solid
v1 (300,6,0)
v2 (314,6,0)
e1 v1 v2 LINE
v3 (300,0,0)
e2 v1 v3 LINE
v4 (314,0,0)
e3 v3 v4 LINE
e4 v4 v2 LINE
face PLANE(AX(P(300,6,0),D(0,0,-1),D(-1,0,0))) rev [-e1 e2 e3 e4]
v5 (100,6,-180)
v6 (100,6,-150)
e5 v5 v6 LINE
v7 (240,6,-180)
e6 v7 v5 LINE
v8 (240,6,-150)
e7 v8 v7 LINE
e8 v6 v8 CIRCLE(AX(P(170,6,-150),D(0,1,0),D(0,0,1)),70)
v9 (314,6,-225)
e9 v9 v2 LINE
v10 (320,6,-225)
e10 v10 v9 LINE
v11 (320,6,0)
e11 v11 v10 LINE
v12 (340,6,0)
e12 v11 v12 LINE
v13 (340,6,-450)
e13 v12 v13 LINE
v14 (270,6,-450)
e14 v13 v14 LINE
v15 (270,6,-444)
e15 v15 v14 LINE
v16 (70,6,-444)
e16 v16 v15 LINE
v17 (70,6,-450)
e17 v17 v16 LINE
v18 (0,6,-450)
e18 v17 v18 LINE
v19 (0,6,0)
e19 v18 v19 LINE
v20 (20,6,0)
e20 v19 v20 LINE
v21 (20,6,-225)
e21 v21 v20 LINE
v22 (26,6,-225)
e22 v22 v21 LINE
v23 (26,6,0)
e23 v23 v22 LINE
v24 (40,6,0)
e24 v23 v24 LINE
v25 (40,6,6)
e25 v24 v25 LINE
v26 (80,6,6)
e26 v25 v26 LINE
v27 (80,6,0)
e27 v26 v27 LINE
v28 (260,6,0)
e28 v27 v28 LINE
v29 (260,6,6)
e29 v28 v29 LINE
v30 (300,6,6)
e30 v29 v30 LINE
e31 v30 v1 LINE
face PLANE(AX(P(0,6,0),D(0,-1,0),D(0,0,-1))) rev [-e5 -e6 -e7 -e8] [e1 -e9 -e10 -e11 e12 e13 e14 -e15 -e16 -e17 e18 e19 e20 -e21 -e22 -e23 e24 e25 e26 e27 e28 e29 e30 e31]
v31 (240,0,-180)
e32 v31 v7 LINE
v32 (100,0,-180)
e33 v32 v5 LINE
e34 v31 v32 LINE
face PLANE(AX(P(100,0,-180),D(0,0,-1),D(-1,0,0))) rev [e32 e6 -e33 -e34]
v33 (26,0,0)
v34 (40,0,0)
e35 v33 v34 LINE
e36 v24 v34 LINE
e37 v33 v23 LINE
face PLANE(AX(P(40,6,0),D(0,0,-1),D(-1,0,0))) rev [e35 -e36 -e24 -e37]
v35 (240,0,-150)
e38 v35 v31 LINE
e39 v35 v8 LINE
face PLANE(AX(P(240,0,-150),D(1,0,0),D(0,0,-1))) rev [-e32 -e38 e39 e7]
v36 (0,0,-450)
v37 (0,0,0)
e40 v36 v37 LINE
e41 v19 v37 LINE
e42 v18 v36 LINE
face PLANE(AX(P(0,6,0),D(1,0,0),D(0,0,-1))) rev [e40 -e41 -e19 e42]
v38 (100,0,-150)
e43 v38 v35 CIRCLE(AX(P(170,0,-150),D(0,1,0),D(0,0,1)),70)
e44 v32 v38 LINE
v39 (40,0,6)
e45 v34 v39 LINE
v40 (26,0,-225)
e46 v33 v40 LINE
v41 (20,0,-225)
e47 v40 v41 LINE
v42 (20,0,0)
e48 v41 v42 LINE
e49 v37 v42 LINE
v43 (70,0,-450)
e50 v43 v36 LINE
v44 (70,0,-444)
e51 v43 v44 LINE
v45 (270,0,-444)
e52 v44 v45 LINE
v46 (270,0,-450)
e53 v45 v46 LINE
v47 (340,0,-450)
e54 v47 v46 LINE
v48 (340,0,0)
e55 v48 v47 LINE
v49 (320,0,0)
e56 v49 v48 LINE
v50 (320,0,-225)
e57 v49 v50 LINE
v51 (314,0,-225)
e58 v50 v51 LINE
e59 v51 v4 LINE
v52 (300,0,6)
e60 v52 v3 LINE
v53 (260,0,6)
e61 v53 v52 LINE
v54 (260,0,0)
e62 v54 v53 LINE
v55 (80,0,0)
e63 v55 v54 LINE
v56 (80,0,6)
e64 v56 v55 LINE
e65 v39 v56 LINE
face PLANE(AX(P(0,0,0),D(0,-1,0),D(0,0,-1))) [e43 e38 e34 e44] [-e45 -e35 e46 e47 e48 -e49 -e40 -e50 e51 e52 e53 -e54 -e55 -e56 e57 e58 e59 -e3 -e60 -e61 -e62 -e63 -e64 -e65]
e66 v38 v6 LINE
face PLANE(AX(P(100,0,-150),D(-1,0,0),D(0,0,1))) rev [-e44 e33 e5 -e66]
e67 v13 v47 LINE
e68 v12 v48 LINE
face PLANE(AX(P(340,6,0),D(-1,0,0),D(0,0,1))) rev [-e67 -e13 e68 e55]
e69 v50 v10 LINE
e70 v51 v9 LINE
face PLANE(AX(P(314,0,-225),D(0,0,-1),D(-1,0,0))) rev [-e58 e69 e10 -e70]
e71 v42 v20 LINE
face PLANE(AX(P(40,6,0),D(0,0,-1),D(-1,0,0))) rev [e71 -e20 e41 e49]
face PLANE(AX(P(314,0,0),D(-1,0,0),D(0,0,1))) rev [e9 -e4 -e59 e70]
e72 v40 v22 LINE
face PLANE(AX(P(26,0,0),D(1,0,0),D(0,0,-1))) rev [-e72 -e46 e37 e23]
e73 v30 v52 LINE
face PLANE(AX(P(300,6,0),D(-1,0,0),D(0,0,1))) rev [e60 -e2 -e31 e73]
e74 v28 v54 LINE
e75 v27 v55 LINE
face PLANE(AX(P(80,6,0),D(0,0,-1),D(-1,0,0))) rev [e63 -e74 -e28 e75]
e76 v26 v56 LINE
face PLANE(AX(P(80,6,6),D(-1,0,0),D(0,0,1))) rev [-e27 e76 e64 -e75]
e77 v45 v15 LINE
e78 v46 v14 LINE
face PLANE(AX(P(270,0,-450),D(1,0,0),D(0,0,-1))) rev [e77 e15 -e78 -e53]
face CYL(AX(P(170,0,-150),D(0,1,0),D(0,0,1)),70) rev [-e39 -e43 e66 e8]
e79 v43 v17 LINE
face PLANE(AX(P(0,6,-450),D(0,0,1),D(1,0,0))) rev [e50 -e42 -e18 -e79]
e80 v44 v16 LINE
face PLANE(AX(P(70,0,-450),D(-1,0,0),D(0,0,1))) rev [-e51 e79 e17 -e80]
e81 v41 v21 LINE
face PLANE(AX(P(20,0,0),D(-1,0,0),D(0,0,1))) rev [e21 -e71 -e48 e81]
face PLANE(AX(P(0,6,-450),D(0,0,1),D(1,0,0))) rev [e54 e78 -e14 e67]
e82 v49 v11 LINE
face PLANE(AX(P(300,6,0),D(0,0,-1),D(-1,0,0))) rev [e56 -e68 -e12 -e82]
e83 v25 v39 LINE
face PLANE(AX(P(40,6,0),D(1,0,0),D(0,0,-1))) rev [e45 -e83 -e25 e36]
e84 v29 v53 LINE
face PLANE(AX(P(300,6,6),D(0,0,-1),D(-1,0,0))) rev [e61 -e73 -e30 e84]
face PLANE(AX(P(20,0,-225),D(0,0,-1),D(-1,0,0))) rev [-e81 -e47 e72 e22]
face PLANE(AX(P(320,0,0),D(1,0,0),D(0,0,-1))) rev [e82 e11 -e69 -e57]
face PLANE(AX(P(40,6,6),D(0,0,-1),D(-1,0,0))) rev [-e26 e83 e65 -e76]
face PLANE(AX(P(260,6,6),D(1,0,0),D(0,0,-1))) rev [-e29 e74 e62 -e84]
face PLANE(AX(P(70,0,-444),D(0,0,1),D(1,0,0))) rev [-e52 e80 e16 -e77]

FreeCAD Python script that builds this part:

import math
import FreeCAD as App
import Part
import Sketcher
from FreeCAD import Vector

doc = App.newDocument("Part")
body = doc.addObject("PartDesign::Body", "Body")

# Sketch on XZ plane
sketch1 = body.newObject("Sketcher::SketchObject", "Sketch")
sketch1.AttachmentSupport = (doc.getObject("XZ_Plane"), [""])
sketch1.MapMode = "FlatFace"
sketch1.addGeometry([
    Part.LineSegment(Vector(300, 6, 0), Vector(300, 0, 0)),  # 0
    Part.LineSegment(Vector(300, 0, 0), Vector(340, 0, 0)),  # 1
    Part.LineSegment(Vector(340, 0, 0), Vector(340, -450, 0)),  # 2
    Part.LineSegment(Vector(340, -450, 0), Vector(0, -450, 0)),  # 3
    Part.LineSegment(Vector(0, -450, 0), Vector(0, 0, 0)),  # 4
    Part.LineSegment(Vector(0, 0, 0), Vector(40, 0, 0)),  # 5
    Part.LineSegment(Vector(40, 0, 0), Vector(40, 6, 0)),  # 6
    Part.LineSegment(Vector(40, 6, 0), Vector(80, 6, 0)),  # 7
    Part.LineSegment(Vector(80, 6, 0), Vector(80, 0, 0)),  # 8
    Part.LineSegment(Vector(80, 0, 0), Vector(260, 0, 0)),  # 9
    Part.LineSegment(Vector(260, 0, 0), Vector(260, 6, 0)),  # 10
    Part.LineSegment(Vector(260, 6, 0), Vector(300, 6, 0)),  # 11
], False)
sketch1.addConstraint([
    Sketcher.Constraint("Coincident", 0, 2, 1, 1),
    Sketcher.Constraint("Coincident", 1, 2, 2, 1),
    Sketcher.Constraint("Coincident", 2, 2, 3, 1),
    Sketcher.Constraint("Coincident", 3, 2, 4, 1),
    Sketcher.Constraint("Coincident", 4, 2, 5, 1),
    Sketcher.Constraint("Coincident", 5, 2, 6, 1),
    Sketcher.Constraint("Coincident", 6, 2, 7, 1),
    Sketcher.Constraint("Coincident", 7, 2, 8, 1),
    Sketcher.Constraint("Coincident", 8, 2, 9, 1),
    Sketcher.Constraint("Coincident", 9, 2, 10, 1),
    Sketcher.Constraint("Coincident", 10, 2, 11, 1),
    Sketcher.Constraint("Coincident", 11, 2, 0, 1),
    Sketcher.Constraint("Vertical", 0),
    Sketcher.Constraint("Horizontal", 1),
    Sketcher.Constraint("Vertical", 2),
    Sketcher.Constraint("Horizontal", 3),
    Sketcher.Constraint("Vertical", 4),
    Sketcher.Constraint("Horizontal", 5),
    Sketcher.Constraint("Vertical", 6),
    Sketcher.Constraint("Horizontal", 7),
    Sketcher.Constraint("Vertical", 8),
    Sketcher.Constraint("Horizontal", 9),
    Sketcher.Constraint("Vertical", 10),
    Sketcher.Constraint("Horizontal", 11),
    Sketcher.Constraint("Coincident", 4, 2, -1, 1),
    Sketcher.Constraint("PointOnObject", 0, 2, -1),
    Sketcher.Constraint("PointOnObject", 8, 2, -1),
    Sketcher.Constraint("Horizontal", 7, 2, 10, 2),
    Sketcher.Constraint("Equal", 1, 5),
    Sketcher.Constraint("Equal", 5, 7),
    Sketcher.Constraint("Equal", 7, 11),
    Sketcher.Constraint("DistanceX", 1, 1, 1, 2, 40.0),
    Sketcher.Constraint("DistanceX", 3, 2, 3, 1, 340.0),
    Sketcher.Constraint("DistanceY", 0, 2, 0, 1, 6.0),
    Sketcher.Constraint("DistanceY", 2, 2, 2, 1, 450.0),
])
pad1 = body.newObject("PartDesign::Pad", "Pad")
pad1.Profile = sketch1
pad1.Length = 6
pad1.Reversed = True

# Sketch on XZ plane
sketch2 = body.newObject("Sketcher::SketchObject", "Sketch001")
sketch2.AttachmentSupport = (doc.getObject("XZ_Plane"), [""])
sketch2.MapMode = "FlatFace"
sketch2.AttachmentOffset = App.Placement(Vector(0, 0, -6), App.Rotation())
sketch2.addGeometry([
    Part.LineSegment(Vector(20, -225, 0), Vector(20, 0, 0)),
    Part.LineSegment(Vector(20, 0, 0), Vector(26, 0, 0)),
    Part.LineSegment(Vector(26, 0, 0), Vector(26, -225, 0)),
    Part.LineSegment(Vector(26, -225, 0), Vector(20, -225, 0)),
], False)
sketch2.addConstraint([
    Sketcher.Constraint("Coincident", 0, 2, 1, 1),
    Sketcher.Constraint("Coincident", 1, 2, 2, 1),
    Sketcher.Constraint("Coincident", 2, 2, 3, 1),
    Sketcher.Constraint("Coincident", 3, 2, 0, 1),
    Sketcher.Constraint("Vertical", 0),
    Sketcher.Constraint("Horizontal", 1),
    Sketcher.Constraint("Vertical", 2),
    Sketcher.Constraint("Horizontal", 3),
    Sketcher.Constraint("PointOnObject", 0, 2, -1),
    Sketcher.Constraint("DistanceX", 1, 1, 1, 2, 6.0),
    Sketcher.Constraint("DistanceY", 0, 1, 0, 2, 225.0),
    Sketcher.Constraint("DistanceX", -1, 1, 0, 2, 20.0),
])
pocket1 = body.newObject("PartDesign::Pocket", "Pocket")
pocket1.Profile = sketch2
pocket1.Length = 6
pocket1.Reversed = True
doc.recompute()

linearpattern = body.newObject("PartDesign::LinearPattern", "LinearPattern")
linearpattern.Originals = [pocket1]
linearpattern.Direction = (doc.getObject("X_Axis"), [""])
linearpattern.Mode = "offset"
linearpattern.Offset = 294
linearpattern.Occurrences = 2
body.Tip = linearpattern

# Sketch on XZ plane
sketch3 = body.newObject("Sketcher::SketchObject", "Sketch002")
sketch3.AttachmentSupport = (doc.getObject("XZ_Plane"), [""])
sketch3.MapMode = "FlatFace"
sketch3.AttachmentOffset = App.Placement(Vector(0, 0, -6), App.Rotation())
sketch3.addGeometry([
    Part.LineSegment(Vector(100, -180, 0), Vector(100, -150, 0)),  # 0
    Part.ArcOfCircle(Part.Circle(Vector(170, -150, 0), Vector(0, 0, 1), 70), math.radians(0), math.radians(180)),  # 1
    Part.LineSegment(Vector(240, -150, 0), Vector(240, -180, 0)),  # 2
    Part.LineSegment(Vector(240, -180, 0), Vector(100, -180, 0)),  # 3
    Part.LineSegment(Vector(70, -450, 0), Vector(70, -444, 0)),  # 4
    Part.LineSegment(Vector(70, -444, 0), Vector(270, -444, 0)),  # 5
    Part.LineSegment(Vector(270, -444, 0), Vector(270, -450, 0)),  # 6
    Part.LineSegment(Vector(270, -450, 0), Vector(70, -450, 0)),  # 7
], False)
sketch3.addConstraint([
    Sketcher.Constraint("Tangent", 0, 2, 1, 2),
    Sketcher.Constraint("Tangent", 1, 1, 2, 1),
    Sketcher.Constraint("Coincident", 2, 2, 3, 1),
    Sketcher.Constraint("Coincident", 3, 2, 0, 1),
    Sketcher.Constraint("Coincident", 4, 2, 5, 1),
    Sketcher.Constraint("Coincident", 5, 2, 6, 1),
    Sketcher.Constraint("Coincident", 6, 2, 7, 1),
    Sketcher.Constraint("Coincident", 7, 2, 4, 1),
    Sketcher.Constraint("Vertical", 0),
    Sketcher.Constraint("Vertical", 2),
    Sketcher.Constraint("Horizontal", 3),
    Sketcher.Constraint("Vertical", 4),
    Sketcher.Constraint("Horizontal", 5),
    Sketcher.Constraint("Vertical", 6),
    Sketcher.Constraint("Horizontal", 7),
    Sketcher.Constraint("Radius", 1, 70.0),
    Sketcher.Constraint("DistanceX", 5, 1, 5, 2, 200.0),
    Sketcher.Constraint("DistanceY", 0, 1, 0, 2, 30.0),
    Sketcher.Constraint("DistanceY", 4, 1, 4, 2, 6.0),
    Sketcher.Constraint("DistanceX", -1, 1, 1, 3, 170.0),
    Sketcher.Constraint("DistanceY", 1, 3, -1, 1, 150.0),
    Sketcher.Constraint("DistanceX", -1, 1, 4, 2, 70.0),
    Sketcher.Constraint("DistanceY", 4, 2, -1, 1, 444.0),
])
pocket2 = body.newObject("PartDesign::Pocket", "Pocket001")
pocket2.Profile = sketch3
pocket2.Length = 6
pocket2.Reversed = True

doc.recompute()
